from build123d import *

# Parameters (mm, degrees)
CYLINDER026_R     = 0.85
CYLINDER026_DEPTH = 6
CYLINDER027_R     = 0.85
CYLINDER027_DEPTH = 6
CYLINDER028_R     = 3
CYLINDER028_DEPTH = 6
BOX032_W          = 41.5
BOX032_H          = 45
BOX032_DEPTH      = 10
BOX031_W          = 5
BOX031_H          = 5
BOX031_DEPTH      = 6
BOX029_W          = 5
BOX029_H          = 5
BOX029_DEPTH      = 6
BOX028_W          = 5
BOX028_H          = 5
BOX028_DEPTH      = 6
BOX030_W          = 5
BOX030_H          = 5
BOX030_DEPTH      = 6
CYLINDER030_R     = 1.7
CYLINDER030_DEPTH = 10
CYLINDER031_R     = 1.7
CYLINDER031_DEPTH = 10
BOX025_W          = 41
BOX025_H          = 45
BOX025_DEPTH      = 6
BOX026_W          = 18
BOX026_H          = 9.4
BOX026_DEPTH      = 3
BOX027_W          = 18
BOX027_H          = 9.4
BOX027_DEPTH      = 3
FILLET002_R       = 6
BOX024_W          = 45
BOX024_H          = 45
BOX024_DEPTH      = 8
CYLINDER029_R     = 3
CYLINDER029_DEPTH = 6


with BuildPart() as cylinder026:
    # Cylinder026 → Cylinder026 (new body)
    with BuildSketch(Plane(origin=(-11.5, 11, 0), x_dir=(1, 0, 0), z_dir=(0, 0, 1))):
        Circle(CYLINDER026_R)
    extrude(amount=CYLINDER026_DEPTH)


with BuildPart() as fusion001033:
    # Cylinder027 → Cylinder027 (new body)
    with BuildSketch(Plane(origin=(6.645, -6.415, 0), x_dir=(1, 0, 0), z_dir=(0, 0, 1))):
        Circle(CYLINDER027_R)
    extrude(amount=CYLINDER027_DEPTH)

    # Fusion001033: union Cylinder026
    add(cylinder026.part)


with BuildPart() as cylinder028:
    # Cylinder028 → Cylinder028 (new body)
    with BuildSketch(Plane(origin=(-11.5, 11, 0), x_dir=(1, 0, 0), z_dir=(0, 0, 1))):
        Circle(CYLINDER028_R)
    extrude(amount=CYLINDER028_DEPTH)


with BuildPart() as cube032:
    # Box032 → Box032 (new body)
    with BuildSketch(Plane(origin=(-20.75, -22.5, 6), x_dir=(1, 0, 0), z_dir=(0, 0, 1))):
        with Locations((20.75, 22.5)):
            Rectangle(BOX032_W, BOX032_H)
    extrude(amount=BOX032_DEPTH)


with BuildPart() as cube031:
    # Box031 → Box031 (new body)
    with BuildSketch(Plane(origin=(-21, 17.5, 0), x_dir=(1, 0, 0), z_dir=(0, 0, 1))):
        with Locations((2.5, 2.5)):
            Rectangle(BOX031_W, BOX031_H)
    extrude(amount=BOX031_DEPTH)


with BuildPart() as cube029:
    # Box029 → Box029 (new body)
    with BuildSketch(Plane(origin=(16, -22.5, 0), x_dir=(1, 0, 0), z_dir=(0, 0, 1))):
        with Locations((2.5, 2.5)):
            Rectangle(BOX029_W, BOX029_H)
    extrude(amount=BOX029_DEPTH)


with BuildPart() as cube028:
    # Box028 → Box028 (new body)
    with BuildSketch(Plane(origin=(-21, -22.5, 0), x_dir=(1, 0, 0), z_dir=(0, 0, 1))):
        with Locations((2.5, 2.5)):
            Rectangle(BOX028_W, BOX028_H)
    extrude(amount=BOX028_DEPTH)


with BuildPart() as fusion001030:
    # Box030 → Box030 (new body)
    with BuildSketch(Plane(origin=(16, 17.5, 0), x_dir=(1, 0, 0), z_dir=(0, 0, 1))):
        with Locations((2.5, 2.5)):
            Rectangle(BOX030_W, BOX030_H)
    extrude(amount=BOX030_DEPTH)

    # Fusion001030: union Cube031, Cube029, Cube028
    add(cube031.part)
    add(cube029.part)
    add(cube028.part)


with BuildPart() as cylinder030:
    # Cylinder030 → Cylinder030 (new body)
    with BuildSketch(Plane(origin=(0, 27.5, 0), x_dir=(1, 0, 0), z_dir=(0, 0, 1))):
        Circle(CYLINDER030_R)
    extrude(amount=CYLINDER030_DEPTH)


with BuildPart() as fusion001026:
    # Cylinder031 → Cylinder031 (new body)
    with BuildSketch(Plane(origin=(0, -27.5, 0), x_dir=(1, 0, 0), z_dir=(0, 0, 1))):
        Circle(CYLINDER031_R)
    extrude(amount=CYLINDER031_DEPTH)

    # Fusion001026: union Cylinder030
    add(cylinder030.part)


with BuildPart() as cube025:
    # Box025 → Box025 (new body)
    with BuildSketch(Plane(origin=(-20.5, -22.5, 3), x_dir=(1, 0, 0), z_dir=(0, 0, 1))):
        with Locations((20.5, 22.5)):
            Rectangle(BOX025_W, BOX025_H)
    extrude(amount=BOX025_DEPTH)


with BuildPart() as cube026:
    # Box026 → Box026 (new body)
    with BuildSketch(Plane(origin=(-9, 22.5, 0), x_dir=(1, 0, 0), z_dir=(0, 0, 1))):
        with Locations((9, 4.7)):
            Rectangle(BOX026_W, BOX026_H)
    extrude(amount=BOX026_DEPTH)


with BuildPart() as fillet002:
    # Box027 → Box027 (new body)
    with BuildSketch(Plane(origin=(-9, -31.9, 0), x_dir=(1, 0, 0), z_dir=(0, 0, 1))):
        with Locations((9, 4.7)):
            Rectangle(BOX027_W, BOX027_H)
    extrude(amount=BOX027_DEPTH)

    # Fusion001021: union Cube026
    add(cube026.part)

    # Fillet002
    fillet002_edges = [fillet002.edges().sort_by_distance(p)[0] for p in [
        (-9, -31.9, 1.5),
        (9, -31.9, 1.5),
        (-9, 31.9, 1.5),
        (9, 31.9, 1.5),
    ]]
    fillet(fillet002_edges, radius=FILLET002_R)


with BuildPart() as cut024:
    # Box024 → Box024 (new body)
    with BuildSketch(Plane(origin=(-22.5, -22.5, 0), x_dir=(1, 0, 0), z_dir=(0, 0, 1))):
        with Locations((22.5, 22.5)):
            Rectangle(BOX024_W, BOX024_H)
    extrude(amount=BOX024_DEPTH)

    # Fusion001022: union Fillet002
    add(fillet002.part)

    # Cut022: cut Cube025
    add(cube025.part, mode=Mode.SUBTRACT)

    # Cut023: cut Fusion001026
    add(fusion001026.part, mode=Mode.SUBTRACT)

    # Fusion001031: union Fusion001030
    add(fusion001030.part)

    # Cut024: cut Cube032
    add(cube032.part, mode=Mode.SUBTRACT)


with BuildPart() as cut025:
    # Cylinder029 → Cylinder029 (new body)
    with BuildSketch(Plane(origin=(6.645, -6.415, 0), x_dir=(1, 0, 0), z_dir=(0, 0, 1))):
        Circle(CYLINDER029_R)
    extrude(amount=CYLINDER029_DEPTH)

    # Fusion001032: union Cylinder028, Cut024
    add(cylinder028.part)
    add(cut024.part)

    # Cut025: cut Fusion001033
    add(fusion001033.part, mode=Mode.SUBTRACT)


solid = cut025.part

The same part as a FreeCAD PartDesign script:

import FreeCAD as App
import Part
import Sketcher
from FreeCAD import Vector
Q = App.Units.Quantity


def edges_at(feature, points):
    """Names of the edges that pass closest to the given points."""
    edges = feature.Shape.Edges
    near = lambda p: min(range(len(edges)), key=lambda i: edges[i].distToShape(Part.Vertex(*p))[0])
    return sorted({f"Edge{near(p) + 1}" for p in points})

doc = App.newDocument("Part")
body = doc.addObject("PartDesign::Body", "Body")

sketch1 = body.newObject("Sketcher::SketchObject", "Sketch")
sketch1.AttachmentSupport = (doc.getObject("XY_Plane"), [""])
sketch1.MapMode = "FlatFace"
sketch1.addGeometry(Part.Circle(Vector(-11.5, 11, 0), Vector(0, 0, 1), 0.8), False)
sketch1.addConstraint([
    Sketcher.Constraint("Diameter", 0, Q("1.7 mm")),
    Sketcher.Constraint("DistanceY", -1, 1, 0, 3, Q("11 mm")),
    Sketcher.Constraint("DistanceX", 0, 3, -1, 1, Q("11.5 mm")),
])
pad1 = body.newObject("PartDesign::Pad", "Pad")
pad1.Profile = sketch1
pad1.Length = 6
body2 = doc.addObject("PartDesign::Body", "Body001")
body2.AllowCompound = True

sketch2 = body2.newObject("Sketcher::SketchObject", "Sketch001")
sketch2.AttachmentSupport = (doc.getObject("XY_Plane001"), [""])
sketch2.MapMode = "FlatFace"
sketch2.addGeometry(Part.Circle(Vector(6.6, -6.4, 0), Vector(0, 0, 1), 0.8), False)
sketch2.addConstraint([
    Sketcher.Constraint("Diameter", 0, Q("1.7 mm")),
    Sketcher.Constraint("DistanceX", -1, 1, 0, 3, Q("6.645 mm")),
    Sketcher.Constraint("DistanceY", 0, 3, -1, 1, Q("6.415 mm")),
])
pad2 = body2.newObject("PartDesign::Pad", "Pad001")
pad2.Profile = sketch2
pad2.Length = 6
doc.recompute()

boolean = body2.newObject("PartDesign::Boolean", "Boolean")
boolean.Type = "Fuse"
boolean.addObjects([body])
body3 = doc.addObject("PartDesign::Body", "Body002")

sketch3 = body3.newObject("Sketcher::SketchObject", "Sketch002")
sketch3.AttachmentSupport = (doc.getObject("XY_Plane002"), [""])
sketch3.MapMode = "FlatFace"
sketch3.addGeometry(Part.Circle(Vector(-11.5, 11, 0), Vector(0, 0, 1), 3), False)
sketch3.addConstraint([
    Sketcher.Constraint("Diameter", 0, Q("6 mm")),
    Sketcher.Constraint("DistanceY", -1, 1, 0, 3, Q("11 mm")),
    Sketcher.Constraint("DistanceX", 0, 3, -1, 1, Q("11.5 mm")),
])
pad3 = body3.newObject("PartDesign::Pad", "Pad002")
pad3.Profile = sketch3
pad3.Length = 6
body4 = doc.addObject("PartDesign::Body", "Body003")

sketch4 = body4.newObject("Sketcher::SketchObject", "Sketch003")
sketch4.AttachmentSupport = (doc.getObject("XY_Plane003"), [""])
sketch4.MapMode = "FlatFace"
sketch4.AttachmentOffset = App.Placement(Vector(0, 0, 6), App.Rotation())
sketch4.addGeometry([
    Part.LineSegment(Vector(-21, 22, 0), Vector(-21, -22, 0)),
    Part.LineSegment(Vector(-21, -22, 0), Vector(21, -22, 0)),
    Part.LineSegment(Vector(21, -22, 0), Vector(21, 22, 0)),
    Part.LineSegment(Vector(21, 22, 0), Vector(-21, 22, 0)),
], False)
sketch4.addConstraint([
    Sketcher.Constraint("Coincident", 0, 2, 1, 1),
    Sketcher.Constraint("Coincident", 1, 2, 2, 1),
    Sketcher.Constraint("Coincident", 2, 2, 3, 1),
    Sketcher.Constraint("Coincident", 3, 2, 0, 1),
    Sketcher.Constraint("Vertical", 0),
    Sketcher.Constraint("Horizontal", 1),
    Sketcher.Constraint("Vertical", 2),
    Sketcher.Constraint("Horizontal", 3),
    Sketcher.Constraint("Symmetric", 0, 2, 2, 2, -1, 1),
    Sketcher.Constraint("DistanceY", 0, 2, 0, 1, Q("45 mm")),
    Sketcher.Constraint("DistanceX", 1, 1, 1, 2, Q("41.5 mm")),
])
pad4 = body4.newObject("PartDesign::Pad", "Pad003")
pad4.Profile = sketch4
pad4.Length = 10
body5 = doc.addObject("PartDesign::Body", "Body004")

sketch5 = body5.newObject("Sketcher::SketchObject", "Sketch004")
sketch5.AttachmentSupport = (doc.getObject("XY_Plane004"), [""])
sketch5.MapMode = "FlatFace"
sketch5.addGeometry([
    Part.LineSegment(Vector(-21, 22, 0), Vector(-21, 18, 0)),
    Part.LineSegment(Vector(-21, 18, 0), Vector(-16, 18, 0)),
    Part.LineSegment(Vector(-16, 18, 0), Vector(-16, 22, 0)),
    Part.LineSegment(Vector(-16, 22, 0), Vector(-21, 22, 0)),
], False)
sketch5.addConstraint([
    Sketcher.Constraint("Coincident", 0, 2, 1, 1),
    Sketcher.Constraint("Coincident", 1, 2, 2, 1),
    Sketcher.Constraint("Coincident", 2, 2, 3, 1),
    Sketcher.Constraint("Coincident", 3, 2, 0, 1),
    Sketcher.Constraint("Vertical", 0),
    Sketcher.Constraint("Horizontal", 1),
    Sketcher.Constraint("Vertical", 2),
    Sketcher.Constraint("Horizontal", 3),
    Sketcher.Constraint("Equal", 3, 0),
    Sketcher.Constraint("DistanceX", 1, 1, 1, 2, Q("5 mm")),
    Sketcher.Constraint("DistanceX", 0, 2, -1, 1, Q("21 mm")),
    Sketcher.Constraint("DistanceY", -1, 1, 0, 2, Q("17.5 mm")),
])
pad5 = body5.newObject("PartDesign::Pad", "Pad004")
pad5.Profile = sketch5
pad5.Length = 6
body6 = doc.addObject("PartDesign::Body", "Body005")

sketch6 = body6.newObject("Sketcher::SketchObject", "Sketch005")
sketch6.AttachmentSupport = (doc.getObject("XY_Plane005"), [""])
sketch6.MapMode = "FlatFace"
sketch6.addGeometry([
    Part.LineSegment(Vector(16, -18, 0), Vector(16, -22, 0)),
    Part.LineSegment(Vector(16, -22, 0), Vector(21, -22, 0)),
    Part.LineSegment(Vector(21, -22, 0), Vector(21, -18, 0)),
    Part.LineSegment(Vector(21, -18, 0), Vector(16, -18, 0)),
], False)
sketch6.addConstraint([
    Sketcher.Constraint("Coincident", 0, 2, 1, 1),
    Sketcher.Constraint("Coincident", 1, 2, 2, 1),
    Sketcher.Constraint("Coincident", 2, 2, 3, 1),
    Sketcher.Constraint("Coincident", 3, 2, 0, 1),
    Sketcher.Constraint("Vertical", 0),
    Sketcher.Constraint("Horizontal", 1),
    Sketcher.Constraint("Vertical", 2),
    Sketcher.Constraint("Horizontal", 3),
    Sketcher.Constraint("Equal", 3, 0),
    Sketcher.Constraint("DistanceX", 1, 1, 1, 2, Q("5 mm")),
    Sketcher.Constraint("DistanceX", -1, 1, 0, 2, Q("16 mm")),
    Sketcher.Constraint("DistanceY", 0, 2, -1, 1, Q("22.5 mm")),
])
pad6 = body6.newObject("PartDesign::Pad", "Pad005")
pad6.Profile = sketch6
pad6.Length = 6
body7 = doc.addObject("PartDesign::Body", "Body006")

sketch7 = body7.newObject("Sketcher::SketchObject", "Sketch006")
sketch7.AttachmentSupport = (doc.getObject("XY_Plane006"), [""])
sketch7.MapMode = "FlatFace"
sketch7.addGeometry([
    Part.LineSegment(Vector(-21, -18, 0), Vector(-21, -22, 0)),
    Part.LineSegment(Vector(-21, -22, 0), Vector(-16, -22, 0)),
    Part.LineSegment(Vector(-16, -22, 0), Vector(-16, -18, 0)),
    Part.LineSegment(Vector(-16, -18, 0), Vector(-21, -18, 0)),
], False)
sketch7.addConstraint([
    Sketcher.Constraint("Coincident", 0, 2, 1, 1),
    Sketcher.Constraint("Coincident", 1, 2, 2, 1),
    Sketcher.Constraint("Coincident", 2, 2, 3, 1),
    Sketcher.Constraint("Coincident", 3, 2, 0, 1),
    Sketcher.Constraint("Vertical", 0),
    Sketcher.Constraint("Horizontal", 1),
    Sketcher.Constraint("Vertical", 2),
    Sketcher.Constraint("Horizontal", 3),
    Sketcher.Constraint("Equal", 3, 0),
    Sketcher.Constraint("DistanceX", 1, 1, 1, 2, Q("5 mm")),
    Sketcher.Constraint("DistanceX", 0, 2, -1, 1, Q("21 mm")),
    Sketcher.Constraint("DistanceY", 0, 2, -1, 1, Q("22.5 mm")),
])
pad7 = body7.newObject("PartDesign::Pad", "Pad006")
pad7.Profile = sketch7
pad7.Length = 6
body8 = doc.addObject("PartDesign::Body", "Body007")
body8.AllowCompound = True

sketch8 = body8.newObject("Sketcher::SketchObject", "Sketch007")
sketch8.AttachmentSupport = (doc.getObject("XY_Plane007"), [""])
sketch8.MapMode = "FlatFace"
sketch8.addGeometry([
    Part.LineSegment(Vector(16, 22, 0), Vector(16, 18, 0)),
    Part.LineSegment(Vector(16, 18, 0), Vector(21, 18, 0)),
    Part.LineSegment(Vector(21, 18, 0), Vector(21, 22, 0)),
    Part.LineSegment(Vector(21, 22, 0), Vector(16, 22, 0)),
], False)
sketch8.addConstraint([
    Sketcher.Constraint("Coincident", 0, 2, 1, 1),
    Sketcher.Constraint("Coincident", 1, 2, 2, 1),
    Sketcher.Constraint("Coincident", 2, 2, 3, 1),
    Sketcher.Constraint("Coincident", 3, 2, 0, 1),
    Sketcher.Constraint("Vertical", 0),
    Sketcher.Constraint("Horizontal", 1),
    Sketcher.Constraint("Vertical", 2),
    Sketcher.Constraint("Horizontal", 3),
    Sketcher.Constraint("Equal", 3, 0),
    Sketcher.Constraint("DistanceX", 1, 1, 1, 2, Q("5 mm")),
    Sketcher.Constraint("DistanceX", -1, 1, 0, 2, Q("16 mm")),
    Sketcher.Constraint("DistanceY", -1, 1, 0, 2, Q("17.5 mm")),
])
pad8 = body8.newObject("PartDesign::Pad", "Pad007")
pad8.Profile = sketch8
pad8.Length = 6
doc.recompute()

boolean2 = body8.newObject("PartDesign::Boolean", "Boolean001")
boolean2.Type = "Fuse"
boolean2.addObjects([body5])
doc.recompute()

boolean3 = body8.newObject("PartDesign::Boolean", "Boolean002")
boolean3.Type = "Fuse"
boolean3.addObjects([body6])
doc.recompute()

boolean4 = body8.newObject("PartDesign::Boolean", "Boolean003")
boolean4.Type = "Fuse"
boolean4.addObjects([body7])
body9 = doc.addObject("PartDesign::Body", "Body008")

sketch9 = body9.newObject("Sketcher::SketchObject", "Sketch008")
sketch9.AttachmentSupport = (doc.getObject("XY_Plane008"), [""])
sketch9.MapMode = "FlatFace"
sketch9.addGeometry(Part.Circle(Vector(0, 27.5, 0), Vector(0, 0, 1), 1.7), False)
sketch9.addConstraint([
    Sketcher.Constraint("PointOnObject", 0, 3, -2),
    Sketcher.Constraint("Diameter", 0, Q("3.4 mm")),
    Sketcher.Constraint("DistanceY", -1, 1, 0, 3, Q("27.5 mm")),
])
pad9 = body9.newObject("PartDesign::Pad", "Pad008")
pad9.Profile = sketch9
pad9.Length = 10
body10 = doc.addObject("PartDesign::Body", "Body009")
body10.AllowCompound = True

sketch10 = body10.newObject("Sketcher::SketchObject", "Sketch009")
sketch10.AttachmentSupport = (doc.getObject("XY_Plane009"), [""])
sketch10.MapMode = "FlatFace"
sketch10.addGeometry(Part.Circle(Vector(0, -27.5, 0), Vector(0, 0, 1), 1.7), False)
sketch10.addConstraint([
    Sketcher.Constraint("PointOnObject", 0, 3, -2),
    Sketcher.Constraint("Diameter", 0, Q("3.4 mm")),
    Sketcher.Constraint("DistanceY", 0, 3, -1, 1, Q("27.5 mm")),
])
pad10 = body10.newObject("PartDesign::Pad", "Pad009")
pad10.Profile = sketch10
pad10.Length = 10
doc.recompute()

boolean5 = body10.newObject("PartDesign::Boolean", "Boolean004")
boolean5.Type = "Fuse"
boolean5.addObjects([body9])
body11 = doc.addObject("PartDesign::Body", "Body010")

sketch11 = body11.newObject("Sketcher::SketchObject", "Sketch010")
sketch11.AttachmentSupport = (doc.getObject("XY_Plane010"), [""])
sketch11.MapMode = "FlatFace"
sketch11.AttachmentOffset = App.Placement(Vector(0, 0, 3), App.Rotation())
sketch11.addGeometry([
    Part.LineSegment(Vector(-20, 22, 0), Vector(-20, -22, 0)),
    Part.LineSegment(Vector(-20, -22, 0), Vector(20, -22, 0)),
    Part.LineSegment(Vector(20, -22, 0), Vector(20, 22, 0)),
    Part.LineSegment(Vector(20, 22, 0), Vector(-20, 22, 0)),
], False)
sketch11.addConstraint([
    Sketcher.Constraint("Coincident", 0, 2, 1, 1),
    Sketcher.Constraint("Coincident", 1, 2, 2, 1),
    Sketcher.Constraint("Coincident", 2, 2, 3, 1),
    Sketcher.Constraint("Coincident", 3, 2, 0, 1),
    Sketcher.Constraint("Vertical", 0),
    Sketcher.Constraint("Horizontal", 1),
    Sketcher.Constraint("Vertical", 2),
    Sketcher.Constraint("Horizontal", 3),
    Sketcher.Constraint("Symmetric", 0, 2, 2, 2, -1, 1),
    Sketcher.Constraint("DistanceX", 1, 1, 1, 2, Q("41 mm")),
    Sketcher.Constraint("DistanceY", 0, 2, 0, 1, Q("45 mm")),
])
pad11 = body11.newObject("PartDesign::Pad", "Pad010")
pad11.Profile = sketch11
pad11.Length = 6
body12 = doc.addObject("PartDesign::Body", "Body011")

sketch12 = body12.newObject("Sketcher::SketchObject", "Sketch011")
sketch12.AttachmentSupport = (doc.getObject("XY_Plane011"), [""])
sketch12.MapMode = "FlatFace"
sketch12.addGeometry([
    Part.LineSegment(Vector(-9, 32, 0), Vector(-9, 22, 0)),
    Part.LineSegment(Vector(-9, 22, 0), Vector(9, 22, 0)),
    Part.LineSegment(Vector(9, 22, 0), Vector(9, 32, 0)),
    Part.LineSegment(Vector(9, 32, 0), Vector(-9, 32, 0)),
], False)
sketch12.addConstraint([
    Sketcher.Constraint("Coincident", 0, 2, 1, 1),
    Sketcher.Constraint("Coincident", 1, 2, 2, 1),
    Sketcher.Constraint("Coincident", 2, 2, 3, 1),
    Sketcher.Constraint("Coincident", 3, 2, 0, 1),
    Sketcher.Constraint("Vertical", 0),
    Sketcher.Constraint("Horizontal", 1),
    Sketcher.Constraint("Vertical", 2),
    Sketcher.Constraint("Horizontal", 3),
    Sketcher.Constraint("DistanceX", 1, 1, 1, 2, Q("18 mm")),
    Sketcher.Constraint("DistanceY", 0, 2, 0, 1, Q("9.4 mm")),
    Sketcher.Constraint("DistanceX", 0, 2, -1, 1, Q("9 mm")),
    Sketcher.Constraint("DistanceY", -1, 1, 0, 2, Q("22.5 mm")),
])
pad12 = body12.newObject("PartDesign::Pad", "Pad011")
pad12.Profile = sketch12
pad12.Length = 3
body13 = doc.addObject("PartDesign::Body", "Body012")
body13.AllowCompound = True

sketch13 = body13.newObject("Sketcher::SketchObject", "Sketch012")
sketch13.AttachmentSupport = (doc.getObject("XY_Plane012"), [""])
sketch13.MapMode = "FlatFace"
sketch13.addGeometry([
    Part.LineSegment(Vector(-9, -22, 0), Vector(-9, -32, 0)),
    Part.LineSegment(Vector(-9, -32, 0), Vector(9, -32, 0)),
    Part.LineSegment(Vector(9, -32, 0), Vector(9, -22, 0)),
    Part.LineSegment(Vector(9, -22, 0), Vector(-9, -22, 0)),
], False)
sketch13.addConstraint([
    Sketcher.Constraint("Coincident", 0, 2, 1, 1),
    Sketcher.Constraint("Coincident", 1, 2, 2, 1),
    Sketcher.Constraint("Coincident", 2, 2, 3, 1),
    Sketcher.Constraint("Coincident", 3, 2, 0, 1),
    Sketcher.Constraint("Vertical", 0),
    Sketcher.Constraint("Horizontal", 1),
    Sketcher.Constraint("Vertical", 2),
    Sketcher.Constraint("Horizontal", 3),
    Sketcher.Constraint("DistanceX", 1, 1, 1, 2, Q("18 mm")),
    Sketcher.Constraint("DistanceY", 0, 2, 0, 1, Q("9.4 mm")),
    Sketcher.Constraint("DistanceX", 0, 2, -1, 1, Q("9 mm")),
    Sketcher.Constraint("DistanceY", 0, 2, -1, 1, Q("31.9 mm")),
])
pad13 = body13.newObject("PartDesign::Pad", "Pad012")
pad13.Profile = sketch13
pad13.Length = 3
doc.recompute()

boolean6 = body13.newObject("PartDesign::Boolean", "Boolean005")
boolean6.Type = "Fuse"
boolean6.addObjects([body12])
doc.recompute()

fillet = body13.newObject("PartDesign::Fillet", "Fillet")
fillet.Base = (boolean6, edges_at(boolean6, [
    (-9, -31.9, 1.5),
    (9, -31.9, 1.5),
    (-9, 31.9, 1.5),
    (9, 31.9, 1.5),
]))
fillet.Radius = 6
body14 = doc.addObject("PartDesign::Body", "Body013")

sketch14 = body14.newObject("Sketcher::SketchObject", "Sketch013")
sketch14.AttachmentSupport = (doc.getObject("XY_Plane013"), [""])
sketch14.MapMode = "FlatFace"
sketch14.addGeometry([
    Part.LineSegment(Vector(-22, 22, 0), Vector(-22, -22, 0)),
    Part.LineSegment(Vector(-22, -22, 0), Vector(22, -22, 0)),
    Part.LineSegment(Vector(22, -22, 0), Vector(22, 22, 0)),
    Part.LineSegment(Vector(22, 22, 0), Vector(-22, 22, 0)),
], False)
sketch14.addConstraint([
    Sketcher.Constraint("Coincident", 0, 2, 1, 1),
    Sketcher.Constraint("Coincident", 1, 2, 2, 1),
    Sketcher.Constraint("Coincident", 2, 2, 3, 1),
    Sketcher.Constraint("Coincident", 3, 2, 0, 1),
    Sketcher.Constraint("Vertical", 0),
    Sketcher.Constraint("Horizontal", 1),
    Sketcher.Constraint("Vertical", 2),
    Sketcher.Constraint("Horizontal", 3),
    Sketcher.Constraint("Symmetric", 0, 2, 2, 2, -1, 1),
    Sketcher.Constraint("Equal", 3, 0),
    Sketcher.Constraint("DistanceX", 1, 1, 1, 2, Q("45 mm")),
])
pad14 = body14.newObject("PartDesign::Pad", "Pad013")
pad14.Profile = sketch14
pad14.Length = 8
doc.recompute()

boolean7 = body14.newObject("PartDesign::Boolean", "Boolean006")
boolean7.Type = "Fuse"
boolean7.addObjects([body13])
doc.recompute()

boolean8 = body14.newObject("PartDesign::Boolean", "Boolean007")
boolean8.Type = "Cut"
boolean8.addObjects([body11])
doc.recompute()

boolean9 = body14.newObject("PartDesign::Boolean", "Boolean008")
boolean9.Type = "Cut"
boolean9.addObjects([body10])
doc.recompute()

boolean10 = body14.newObject("PartDesign::Boolean", "Boolean009")
boolean10.Type = "Fuse"
boolean10.addObjects([body8])
doc.recompute()

boolean11 = body14.newObject("PartDesign::Boolean", "Boolean010")
boolean11.Type = "Cut"
boolean11.addObjects([body4])
body15 = doc.addObject("PartDesign::Body", "Body014")
body15.AllowCompound = True

sketch15 = body15.newObject("Sketcher::SketchObject", "Sketch014")
sketch15.AttachmentSupport = (doc.getObject("XY_Plane014"), [""])
sketch15.MapMode = "FlatFace"
sketch15.addGeometry(Part.Circle(Vector(6.6, -6.4, 0), Vector(0, 0, 1), 3), False)
sketch15.addConstraint([
    Sketcher.Constraint("Diameter", 0, Q("6 mm")),
    Sketcher.Constraint("DistanceX", -1, 1, 0, 3, Q("6.645 mm")),
    Sketcher.Constraint("DistanceY", 0, 3, -1, 1, Q("6.415 mm")),
])
pad15 = body15.newObject("PartDesign::Pad", "Pad014")
pad15.Profile = sketch15
pad15.Length = 6
doc.recompute()

boolean12 = body15.newObject("PartDesign::Boolean", "Boolean011")
boolean12.Type = "Fuse"
boolean12.addObjects([body3])
doc.recompute()

boolean13 = body15.newObject("PartDesign::Boolean", "Boolean012")
boolean13.Type = "Fuse"
boolean13.addObjects([body14])
doc.recompute()

boolean14 = body15.newObject("PartDesign::Boolean", "Boolean013")
boolean14.Type = "Cut"
boolean14.addObjects([body2])

doc.recompute()
